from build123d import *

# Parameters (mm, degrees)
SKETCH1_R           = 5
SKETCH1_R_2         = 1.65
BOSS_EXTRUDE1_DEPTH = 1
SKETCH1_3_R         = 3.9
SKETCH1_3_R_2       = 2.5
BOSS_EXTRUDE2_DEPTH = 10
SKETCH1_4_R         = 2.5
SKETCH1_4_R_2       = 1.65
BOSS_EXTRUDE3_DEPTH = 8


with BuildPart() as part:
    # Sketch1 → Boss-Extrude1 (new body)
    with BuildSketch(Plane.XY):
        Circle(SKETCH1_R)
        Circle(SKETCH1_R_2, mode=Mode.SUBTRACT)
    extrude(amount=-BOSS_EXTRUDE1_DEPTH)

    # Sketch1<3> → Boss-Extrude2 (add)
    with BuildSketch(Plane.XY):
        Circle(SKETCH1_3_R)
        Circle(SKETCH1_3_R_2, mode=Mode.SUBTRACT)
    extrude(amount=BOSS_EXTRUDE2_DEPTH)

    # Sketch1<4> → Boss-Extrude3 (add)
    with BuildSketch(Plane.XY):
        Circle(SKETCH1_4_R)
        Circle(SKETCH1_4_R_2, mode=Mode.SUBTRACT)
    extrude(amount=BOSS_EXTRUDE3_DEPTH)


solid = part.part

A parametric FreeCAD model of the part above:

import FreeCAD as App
import Part
import Sketcher
Q = App.Units.Quantity

doc = App.newDocument("Part")
params = doc.addObject("Spreadsheet::Sheet", "Params")
for row, (alias, value) in enumerate([
    ("sketch1_diameter", "10 mm"),
    ("sketch1_diameter2", "3.3 mm"),
    ("pad1_length", "1 mm"),
    ("sketch2_diameter", "5 mm"),
    ("sketch2_diameter2", "7.8 mm"),
    ("pad2_length", "10 mm"),
    ("sketch3_diameter", "5 mm"),
    ("sketch3_diameter2", "3.3 mm"),
    ("pad3_length", "8 mm"),
], start=1):
    params.set(f"A{row}", alias)
    params.set(f"B{row}", "=" + value)
    params.setAlias(f"B{row}", alias)

body = doc.addObject("PartDesign::Body", "Body")

# Sketch on XY plane
sketch1 = body.newObject("Sketcher::SketchObject", "Sketch")
sketch1.AttachmentSupport = (doc.getObject("XY_Plane"), [""])
sketch1.MapMode = "FlatFace"
sketch1.addGeometry([
    Part.Circle(App.Vector(0, 0, 0), App.Vector(0, 0, 1), 5),
    Part.Circle(App.Vector(0, 0, 0), App.Vector(0, 0, 1), 1.65),
], False)
sketch1.addConstraint([
    Sketcher.Constraint("Coincident", 0, 3, -1, 1),
    Sketcher.Constraint("Coincident", 1, 3, -1, 1),
    Sketcher.Constraint("Diameter", 0, Q("10 mm")),
    Sketcher.Constraint("Diameter", 1, Q("3.3 mm")),
])
sketch1.setExpression("Constraints[2]", "Params.sketch1_diameter")
sketch1.setExpression("Constraints[3]", "Params.sketch1_diameter2")
pad1 = body.newObject("PartDesign::Pad", "Pad")
pad1.Profile = sketch1
pad1.setExpression("Length", "Params.pad1_length")
pad1.Reversed = True

# Sketch on XY plane
sketch2 = body.newObject("Sketcher::SketchObject", "Sketch001")
sketch2.AttachmentSupport = (doc.getObject("XY_Plane"), [""])
sketch2.MapMode = "FlatFace"
sketch2.addGeometry([
    Part.Circle(App.Vector(0, 0, 0), App.Vector(0, 0, 1), 3.9),
    Part.Circle(App.Vector(0, 0, 0), App.Vector(0, 0, 1), 2.5),
], False)
sketch2.addConstraint([
    Sketcher.Constraint("Coincident", 0, 3, -1, 1),
    Sketcher.Constraint("Coincident", 1, 3, -1, 1),
    Sketcher.Constraint("Diameter", 1, Q("5 mm")),
    Sketcher.Constraint("Diameter", 0, Q("7.8 mm")),
])
sketch2.setExpression("Constraints[2]", "Params.sketch2_diameter")
sketch2.setExpression("Constraints[3]", "Params.sketch2_diameter2")
pad2 = body.newObject("PartDesign::Pad", "Pad001")
pad2.Profile = sketch2
pad2.setExpression("Length", "Params.pad2_length")

# Sketch on XY plane
sketch3 = body.newObject("Sketcher::SketchObject", "Sketch002")
sketch3.AttachmentSupport = (doc.getObject("XY_Plane"), [""])
sketch3.MapMode = "FlatFace"
sketch3.addGeometry([
    Part.Circle(App.Vector(0, 0, 0), App.Vector(0, 0, 1), 2.5),
    Part.Circle(App.Vector(0, 0, 0), App.Vector(0, 0, 1), 1.65),
], False)
sketch3.addConstraint([
    Sketcher.Constraint("Coincident", 0, 3, -1, 1),
    Sketcher.Constraint("Coincident", 1, 3, -1, 1),
    Sketcher.Constraint("Diameter", 0, Q("5 mm")),
    Sketcher.Constraint("Diameter", 1, Q("3.3 mm")),
])
sketch3.setExpression("Constraints[2]", "Params.sketch3_diameter")
sketch3.setExpression("Constraints[3]", "Params.sketch3_diameter2")
pad3 = body.newObject("PartDesign::Pad", "Pad002")
pad3.Profile = sketch3
pad3.setExpression("Length", "Params.pad3_length")

doc.recompute()
